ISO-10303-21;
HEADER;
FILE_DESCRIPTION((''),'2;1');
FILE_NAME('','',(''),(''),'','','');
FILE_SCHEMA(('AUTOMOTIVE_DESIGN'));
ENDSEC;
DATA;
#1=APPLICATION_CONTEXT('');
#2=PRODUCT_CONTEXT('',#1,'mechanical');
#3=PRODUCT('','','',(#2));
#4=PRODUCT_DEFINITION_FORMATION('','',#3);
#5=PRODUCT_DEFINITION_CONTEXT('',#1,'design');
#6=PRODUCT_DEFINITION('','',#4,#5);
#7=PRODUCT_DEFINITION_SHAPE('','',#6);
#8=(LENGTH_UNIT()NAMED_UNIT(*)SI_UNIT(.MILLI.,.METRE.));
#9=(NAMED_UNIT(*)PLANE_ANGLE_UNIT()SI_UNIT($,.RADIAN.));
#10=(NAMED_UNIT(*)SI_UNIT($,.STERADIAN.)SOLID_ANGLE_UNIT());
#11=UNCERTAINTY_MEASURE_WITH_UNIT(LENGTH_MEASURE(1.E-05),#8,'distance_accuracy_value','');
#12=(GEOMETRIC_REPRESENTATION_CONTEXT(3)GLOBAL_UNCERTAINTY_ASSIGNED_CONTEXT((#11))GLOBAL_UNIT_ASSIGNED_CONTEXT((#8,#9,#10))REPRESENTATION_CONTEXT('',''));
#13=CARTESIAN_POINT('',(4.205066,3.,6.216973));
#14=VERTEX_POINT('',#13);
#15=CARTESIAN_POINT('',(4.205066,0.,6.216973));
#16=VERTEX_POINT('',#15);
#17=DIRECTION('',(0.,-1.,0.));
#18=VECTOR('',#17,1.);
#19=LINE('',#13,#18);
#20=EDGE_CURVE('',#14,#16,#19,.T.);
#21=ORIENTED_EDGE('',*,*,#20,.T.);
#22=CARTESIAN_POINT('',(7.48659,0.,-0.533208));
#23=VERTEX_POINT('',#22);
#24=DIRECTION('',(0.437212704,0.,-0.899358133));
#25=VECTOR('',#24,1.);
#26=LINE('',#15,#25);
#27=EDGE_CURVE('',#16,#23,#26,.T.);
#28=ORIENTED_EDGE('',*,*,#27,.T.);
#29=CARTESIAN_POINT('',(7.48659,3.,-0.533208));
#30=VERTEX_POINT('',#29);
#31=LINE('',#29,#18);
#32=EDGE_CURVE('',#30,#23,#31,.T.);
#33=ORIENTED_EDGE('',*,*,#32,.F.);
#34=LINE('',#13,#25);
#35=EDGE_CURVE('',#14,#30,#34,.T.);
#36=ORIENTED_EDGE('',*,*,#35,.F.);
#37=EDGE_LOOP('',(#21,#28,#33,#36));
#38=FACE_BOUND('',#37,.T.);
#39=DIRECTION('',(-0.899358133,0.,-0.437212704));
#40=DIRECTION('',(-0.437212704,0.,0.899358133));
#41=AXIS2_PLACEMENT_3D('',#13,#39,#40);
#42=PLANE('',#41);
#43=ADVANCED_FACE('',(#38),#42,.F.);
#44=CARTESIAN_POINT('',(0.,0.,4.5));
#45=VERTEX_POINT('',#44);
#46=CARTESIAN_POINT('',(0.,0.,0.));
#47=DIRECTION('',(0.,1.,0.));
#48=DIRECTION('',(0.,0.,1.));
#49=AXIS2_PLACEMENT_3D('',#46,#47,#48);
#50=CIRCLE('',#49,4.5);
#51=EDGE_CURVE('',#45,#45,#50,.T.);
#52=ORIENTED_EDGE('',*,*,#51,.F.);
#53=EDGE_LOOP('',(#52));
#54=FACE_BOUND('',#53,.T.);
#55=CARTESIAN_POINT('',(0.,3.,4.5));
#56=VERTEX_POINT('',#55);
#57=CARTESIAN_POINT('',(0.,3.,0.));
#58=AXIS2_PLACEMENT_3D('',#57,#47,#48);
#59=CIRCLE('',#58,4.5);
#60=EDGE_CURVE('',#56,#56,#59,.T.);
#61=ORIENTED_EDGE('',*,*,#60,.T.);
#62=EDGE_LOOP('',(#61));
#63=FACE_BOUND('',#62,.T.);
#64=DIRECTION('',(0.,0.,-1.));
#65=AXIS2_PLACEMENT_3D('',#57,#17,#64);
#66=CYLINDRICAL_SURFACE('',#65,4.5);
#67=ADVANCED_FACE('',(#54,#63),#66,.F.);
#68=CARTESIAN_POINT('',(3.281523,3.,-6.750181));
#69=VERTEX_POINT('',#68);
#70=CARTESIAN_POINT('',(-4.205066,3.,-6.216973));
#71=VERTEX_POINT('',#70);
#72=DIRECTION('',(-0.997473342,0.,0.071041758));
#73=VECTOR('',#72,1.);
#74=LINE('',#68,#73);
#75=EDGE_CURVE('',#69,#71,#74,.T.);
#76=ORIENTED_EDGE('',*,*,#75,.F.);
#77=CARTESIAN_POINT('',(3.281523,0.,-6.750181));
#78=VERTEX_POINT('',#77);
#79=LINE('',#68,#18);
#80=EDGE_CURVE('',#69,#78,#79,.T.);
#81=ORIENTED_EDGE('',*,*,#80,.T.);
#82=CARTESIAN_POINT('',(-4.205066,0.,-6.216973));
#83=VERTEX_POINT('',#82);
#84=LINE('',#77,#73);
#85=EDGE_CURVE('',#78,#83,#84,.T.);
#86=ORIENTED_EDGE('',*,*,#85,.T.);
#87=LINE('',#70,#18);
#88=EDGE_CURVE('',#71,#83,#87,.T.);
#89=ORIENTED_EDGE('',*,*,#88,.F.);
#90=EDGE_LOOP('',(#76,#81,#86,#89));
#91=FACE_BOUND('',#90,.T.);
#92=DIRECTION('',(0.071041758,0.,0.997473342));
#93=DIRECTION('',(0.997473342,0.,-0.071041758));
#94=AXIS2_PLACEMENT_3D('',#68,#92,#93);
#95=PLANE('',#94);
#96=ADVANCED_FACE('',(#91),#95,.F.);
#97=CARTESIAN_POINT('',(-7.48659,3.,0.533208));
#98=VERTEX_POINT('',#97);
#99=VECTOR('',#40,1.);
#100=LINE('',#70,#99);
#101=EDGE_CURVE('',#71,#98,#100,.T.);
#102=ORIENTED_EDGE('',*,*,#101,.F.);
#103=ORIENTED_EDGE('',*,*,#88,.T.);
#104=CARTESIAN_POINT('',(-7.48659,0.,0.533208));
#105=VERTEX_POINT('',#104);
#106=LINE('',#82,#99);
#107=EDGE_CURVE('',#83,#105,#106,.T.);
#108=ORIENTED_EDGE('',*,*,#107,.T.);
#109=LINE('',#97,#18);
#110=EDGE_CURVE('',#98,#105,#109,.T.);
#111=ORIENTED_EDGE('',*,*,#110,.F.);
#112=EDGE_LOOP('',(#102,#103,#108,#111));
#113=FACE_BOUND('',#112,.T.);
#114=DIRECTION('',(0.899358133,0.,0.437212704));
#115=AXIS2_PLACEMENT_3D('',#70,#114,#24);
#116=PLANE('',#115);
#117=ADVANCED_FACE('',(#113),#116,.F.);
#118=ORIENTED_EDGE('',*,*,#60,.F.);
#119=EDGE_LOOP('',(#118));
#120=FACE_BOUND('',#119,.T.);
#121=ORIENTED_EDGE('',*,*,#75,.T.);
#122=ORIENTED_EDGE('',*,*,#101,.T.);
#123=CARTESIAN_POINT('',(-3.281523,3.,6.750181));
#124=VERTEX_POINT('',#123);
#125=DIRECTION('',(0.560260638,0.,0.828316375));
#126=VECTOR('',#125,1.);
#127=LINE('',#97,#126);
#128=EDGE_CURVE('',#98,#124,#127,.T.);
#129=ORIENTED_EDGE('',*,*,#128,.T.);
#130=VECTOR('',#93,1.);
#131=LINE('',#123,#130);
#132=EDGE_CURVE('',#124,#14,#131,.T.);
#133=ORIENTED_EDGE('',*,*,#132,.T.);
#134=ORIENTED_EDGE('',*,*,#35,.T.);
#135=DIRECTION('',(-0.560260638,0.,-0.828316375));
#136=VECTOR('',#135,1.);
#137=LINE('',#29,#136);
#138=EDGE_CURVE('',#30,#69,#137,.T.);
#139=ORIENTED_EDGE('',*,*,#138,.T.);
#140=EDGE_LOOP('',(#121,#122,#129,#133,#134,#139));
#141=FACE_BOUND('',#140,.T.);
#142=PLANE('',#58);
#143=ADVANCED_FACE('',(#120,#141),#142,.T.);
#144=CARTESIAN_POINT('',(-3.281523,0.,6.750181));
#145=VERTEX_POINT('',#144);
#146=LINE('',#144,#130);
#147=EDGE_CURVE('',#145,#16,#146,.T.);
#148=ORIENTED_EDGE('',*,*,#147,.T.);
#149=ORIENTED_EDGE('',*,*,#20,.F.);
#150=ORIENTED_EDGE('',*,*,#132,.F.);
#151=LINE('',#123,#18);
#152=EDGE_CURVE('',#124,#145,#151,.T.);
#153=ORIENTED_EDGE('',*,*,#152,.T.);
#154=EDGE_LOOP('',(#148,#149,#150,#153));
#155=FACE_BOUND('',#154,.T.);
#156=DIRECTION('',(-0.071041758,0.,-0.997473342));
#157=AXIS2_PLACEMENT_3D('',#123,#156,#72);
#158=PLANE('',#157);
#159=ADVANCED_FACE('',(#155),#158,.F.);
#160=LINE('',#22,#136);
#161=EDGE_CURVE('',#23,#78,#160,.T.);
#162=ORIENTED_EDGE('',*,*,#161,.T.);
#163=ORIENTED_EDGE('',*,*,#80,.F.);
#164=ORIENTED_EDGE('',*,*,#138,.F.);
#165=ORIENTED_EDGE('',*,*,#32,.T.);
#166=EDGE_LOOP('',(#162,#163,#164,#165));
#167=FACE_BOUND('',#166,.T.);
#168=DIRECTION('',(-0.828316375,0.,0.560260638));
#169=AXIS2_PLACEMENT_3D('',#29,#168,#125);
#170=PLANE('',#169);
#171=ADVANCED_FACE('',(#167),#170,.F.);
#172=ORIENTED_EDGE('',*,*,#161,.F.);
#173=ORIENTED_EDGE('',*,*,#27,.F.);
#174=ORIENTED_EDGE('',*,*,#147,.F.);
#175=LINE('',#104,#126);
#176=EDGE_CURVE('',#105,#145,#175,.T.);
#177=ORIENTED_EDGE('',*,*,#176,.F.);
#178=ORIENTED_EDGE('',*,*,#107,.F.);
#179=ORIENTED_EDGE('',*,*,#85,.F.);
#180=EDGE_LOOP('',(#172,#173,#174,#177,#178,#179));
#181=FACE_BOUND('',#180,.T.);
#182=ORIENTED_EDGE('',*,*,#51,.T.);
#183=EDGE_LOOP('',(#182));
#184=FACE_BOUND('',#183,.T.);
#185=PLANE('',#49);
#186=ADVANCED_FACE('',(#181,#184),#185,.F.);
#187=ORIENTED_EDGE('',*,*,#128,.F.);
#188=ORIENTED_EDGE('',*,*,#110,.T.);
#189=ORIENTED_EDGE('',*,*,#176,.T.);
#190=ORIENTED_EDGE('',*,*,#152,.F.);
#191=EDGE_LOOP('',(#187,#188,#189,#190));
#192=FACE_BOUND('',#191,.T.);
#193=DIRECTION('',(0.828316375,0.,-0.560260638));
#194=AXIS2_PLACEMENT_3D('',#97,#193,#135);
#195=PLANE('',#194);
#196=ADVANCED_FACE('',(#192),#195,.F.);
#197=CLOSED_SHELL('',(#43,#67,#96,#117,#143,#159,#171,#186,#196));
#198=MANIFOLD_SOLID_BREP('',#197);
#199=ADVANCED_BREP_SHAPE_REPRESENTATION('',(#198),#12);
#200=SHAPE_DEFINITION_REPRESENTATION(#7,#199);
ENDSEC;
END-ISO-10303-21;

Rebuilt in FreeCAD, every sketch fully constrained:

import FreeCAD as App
import Part
import Sketcher
from FreeCAD import Vector


def add_polygon(sketch, points):
    """Adds a closed chain of lines whose ends are joined by coincident constraints."""
    first, n = sketch.GeometryCount, len(points)
    for a, b in zip(points, points[1:] + points[:1]):
        sketch.addGeometry(Part.LineSegment(App.Vector(*a, 0), App.Vector(*b, 0)), False)
    for i in range(n):
        sketch.addConstraint(Sketcher.Constraint("Coincident", first + i, 2, first + (i + 1) % n, 1))

doc = App.newDocument("Part")
body = doc.addObject("PartDesign::Body", "Body")

# Sketch on XZ plane
sketch1 = doc.addObject("Sketcher::SketchObject", "Sketch")
body.addObject(sketch1)
sketch1.AttachmentSupport = (doc.XZ_Plane, [""])
sketch1.MapMode = "FlatFace"
add_polygon(sketch1, [(4.2, 6.2), (7.5, -0.5), (3.3, -6.8), (-4.2, -6.2), (-7.5, 0.5), (-3.3, 6.8)])  # lines 0-5
sketch1.addGeometry(Part.Circle(Vector(0, 0, 0), Vector(0, 0, 1), 4.5), False)  # 6
sketch1.addConstraint([
    Sketcher.Constraint("Coincident", 6, 3, -1, 1),
    Sketcher.Constraint("Symmetric", 0, 2, 3, 2, -1, 1),
    Sketcher.Constraint("Symmetric", 1, 2, 4, 2, -1, 1),
    Sketcher.Constraint("Symmetric", 2, 2, 5, 2, -1, 1),
    Sketcher.Constraint("Equal", 0, 1),
    Sketcher.Constraint("Equal", 1, 2),
    Sketcher.Constraint("Diameter", 6, 9.0),
    Sketcher.Constraint("DistanceX", -1, 1, 0, 2, 7.48659),
    Sketcher.Constraint("DistanceY", 1, 2, -1, 1, 6.750181),
    Sketcher.Constraint("DistanceX", 2, 2, 1, 2, 7.48659),
    Sketcher.Constraint("DistanceY", 2, 2, 3, 2, 6.750181),
])
pad1 = doc.addObject("PartDesign::Pad", "Pad")
body.addObject(pad1)
pad1.Profile = sketch1
pad1.Length = 3
pad1.Reversed = True

doc.recompute()
